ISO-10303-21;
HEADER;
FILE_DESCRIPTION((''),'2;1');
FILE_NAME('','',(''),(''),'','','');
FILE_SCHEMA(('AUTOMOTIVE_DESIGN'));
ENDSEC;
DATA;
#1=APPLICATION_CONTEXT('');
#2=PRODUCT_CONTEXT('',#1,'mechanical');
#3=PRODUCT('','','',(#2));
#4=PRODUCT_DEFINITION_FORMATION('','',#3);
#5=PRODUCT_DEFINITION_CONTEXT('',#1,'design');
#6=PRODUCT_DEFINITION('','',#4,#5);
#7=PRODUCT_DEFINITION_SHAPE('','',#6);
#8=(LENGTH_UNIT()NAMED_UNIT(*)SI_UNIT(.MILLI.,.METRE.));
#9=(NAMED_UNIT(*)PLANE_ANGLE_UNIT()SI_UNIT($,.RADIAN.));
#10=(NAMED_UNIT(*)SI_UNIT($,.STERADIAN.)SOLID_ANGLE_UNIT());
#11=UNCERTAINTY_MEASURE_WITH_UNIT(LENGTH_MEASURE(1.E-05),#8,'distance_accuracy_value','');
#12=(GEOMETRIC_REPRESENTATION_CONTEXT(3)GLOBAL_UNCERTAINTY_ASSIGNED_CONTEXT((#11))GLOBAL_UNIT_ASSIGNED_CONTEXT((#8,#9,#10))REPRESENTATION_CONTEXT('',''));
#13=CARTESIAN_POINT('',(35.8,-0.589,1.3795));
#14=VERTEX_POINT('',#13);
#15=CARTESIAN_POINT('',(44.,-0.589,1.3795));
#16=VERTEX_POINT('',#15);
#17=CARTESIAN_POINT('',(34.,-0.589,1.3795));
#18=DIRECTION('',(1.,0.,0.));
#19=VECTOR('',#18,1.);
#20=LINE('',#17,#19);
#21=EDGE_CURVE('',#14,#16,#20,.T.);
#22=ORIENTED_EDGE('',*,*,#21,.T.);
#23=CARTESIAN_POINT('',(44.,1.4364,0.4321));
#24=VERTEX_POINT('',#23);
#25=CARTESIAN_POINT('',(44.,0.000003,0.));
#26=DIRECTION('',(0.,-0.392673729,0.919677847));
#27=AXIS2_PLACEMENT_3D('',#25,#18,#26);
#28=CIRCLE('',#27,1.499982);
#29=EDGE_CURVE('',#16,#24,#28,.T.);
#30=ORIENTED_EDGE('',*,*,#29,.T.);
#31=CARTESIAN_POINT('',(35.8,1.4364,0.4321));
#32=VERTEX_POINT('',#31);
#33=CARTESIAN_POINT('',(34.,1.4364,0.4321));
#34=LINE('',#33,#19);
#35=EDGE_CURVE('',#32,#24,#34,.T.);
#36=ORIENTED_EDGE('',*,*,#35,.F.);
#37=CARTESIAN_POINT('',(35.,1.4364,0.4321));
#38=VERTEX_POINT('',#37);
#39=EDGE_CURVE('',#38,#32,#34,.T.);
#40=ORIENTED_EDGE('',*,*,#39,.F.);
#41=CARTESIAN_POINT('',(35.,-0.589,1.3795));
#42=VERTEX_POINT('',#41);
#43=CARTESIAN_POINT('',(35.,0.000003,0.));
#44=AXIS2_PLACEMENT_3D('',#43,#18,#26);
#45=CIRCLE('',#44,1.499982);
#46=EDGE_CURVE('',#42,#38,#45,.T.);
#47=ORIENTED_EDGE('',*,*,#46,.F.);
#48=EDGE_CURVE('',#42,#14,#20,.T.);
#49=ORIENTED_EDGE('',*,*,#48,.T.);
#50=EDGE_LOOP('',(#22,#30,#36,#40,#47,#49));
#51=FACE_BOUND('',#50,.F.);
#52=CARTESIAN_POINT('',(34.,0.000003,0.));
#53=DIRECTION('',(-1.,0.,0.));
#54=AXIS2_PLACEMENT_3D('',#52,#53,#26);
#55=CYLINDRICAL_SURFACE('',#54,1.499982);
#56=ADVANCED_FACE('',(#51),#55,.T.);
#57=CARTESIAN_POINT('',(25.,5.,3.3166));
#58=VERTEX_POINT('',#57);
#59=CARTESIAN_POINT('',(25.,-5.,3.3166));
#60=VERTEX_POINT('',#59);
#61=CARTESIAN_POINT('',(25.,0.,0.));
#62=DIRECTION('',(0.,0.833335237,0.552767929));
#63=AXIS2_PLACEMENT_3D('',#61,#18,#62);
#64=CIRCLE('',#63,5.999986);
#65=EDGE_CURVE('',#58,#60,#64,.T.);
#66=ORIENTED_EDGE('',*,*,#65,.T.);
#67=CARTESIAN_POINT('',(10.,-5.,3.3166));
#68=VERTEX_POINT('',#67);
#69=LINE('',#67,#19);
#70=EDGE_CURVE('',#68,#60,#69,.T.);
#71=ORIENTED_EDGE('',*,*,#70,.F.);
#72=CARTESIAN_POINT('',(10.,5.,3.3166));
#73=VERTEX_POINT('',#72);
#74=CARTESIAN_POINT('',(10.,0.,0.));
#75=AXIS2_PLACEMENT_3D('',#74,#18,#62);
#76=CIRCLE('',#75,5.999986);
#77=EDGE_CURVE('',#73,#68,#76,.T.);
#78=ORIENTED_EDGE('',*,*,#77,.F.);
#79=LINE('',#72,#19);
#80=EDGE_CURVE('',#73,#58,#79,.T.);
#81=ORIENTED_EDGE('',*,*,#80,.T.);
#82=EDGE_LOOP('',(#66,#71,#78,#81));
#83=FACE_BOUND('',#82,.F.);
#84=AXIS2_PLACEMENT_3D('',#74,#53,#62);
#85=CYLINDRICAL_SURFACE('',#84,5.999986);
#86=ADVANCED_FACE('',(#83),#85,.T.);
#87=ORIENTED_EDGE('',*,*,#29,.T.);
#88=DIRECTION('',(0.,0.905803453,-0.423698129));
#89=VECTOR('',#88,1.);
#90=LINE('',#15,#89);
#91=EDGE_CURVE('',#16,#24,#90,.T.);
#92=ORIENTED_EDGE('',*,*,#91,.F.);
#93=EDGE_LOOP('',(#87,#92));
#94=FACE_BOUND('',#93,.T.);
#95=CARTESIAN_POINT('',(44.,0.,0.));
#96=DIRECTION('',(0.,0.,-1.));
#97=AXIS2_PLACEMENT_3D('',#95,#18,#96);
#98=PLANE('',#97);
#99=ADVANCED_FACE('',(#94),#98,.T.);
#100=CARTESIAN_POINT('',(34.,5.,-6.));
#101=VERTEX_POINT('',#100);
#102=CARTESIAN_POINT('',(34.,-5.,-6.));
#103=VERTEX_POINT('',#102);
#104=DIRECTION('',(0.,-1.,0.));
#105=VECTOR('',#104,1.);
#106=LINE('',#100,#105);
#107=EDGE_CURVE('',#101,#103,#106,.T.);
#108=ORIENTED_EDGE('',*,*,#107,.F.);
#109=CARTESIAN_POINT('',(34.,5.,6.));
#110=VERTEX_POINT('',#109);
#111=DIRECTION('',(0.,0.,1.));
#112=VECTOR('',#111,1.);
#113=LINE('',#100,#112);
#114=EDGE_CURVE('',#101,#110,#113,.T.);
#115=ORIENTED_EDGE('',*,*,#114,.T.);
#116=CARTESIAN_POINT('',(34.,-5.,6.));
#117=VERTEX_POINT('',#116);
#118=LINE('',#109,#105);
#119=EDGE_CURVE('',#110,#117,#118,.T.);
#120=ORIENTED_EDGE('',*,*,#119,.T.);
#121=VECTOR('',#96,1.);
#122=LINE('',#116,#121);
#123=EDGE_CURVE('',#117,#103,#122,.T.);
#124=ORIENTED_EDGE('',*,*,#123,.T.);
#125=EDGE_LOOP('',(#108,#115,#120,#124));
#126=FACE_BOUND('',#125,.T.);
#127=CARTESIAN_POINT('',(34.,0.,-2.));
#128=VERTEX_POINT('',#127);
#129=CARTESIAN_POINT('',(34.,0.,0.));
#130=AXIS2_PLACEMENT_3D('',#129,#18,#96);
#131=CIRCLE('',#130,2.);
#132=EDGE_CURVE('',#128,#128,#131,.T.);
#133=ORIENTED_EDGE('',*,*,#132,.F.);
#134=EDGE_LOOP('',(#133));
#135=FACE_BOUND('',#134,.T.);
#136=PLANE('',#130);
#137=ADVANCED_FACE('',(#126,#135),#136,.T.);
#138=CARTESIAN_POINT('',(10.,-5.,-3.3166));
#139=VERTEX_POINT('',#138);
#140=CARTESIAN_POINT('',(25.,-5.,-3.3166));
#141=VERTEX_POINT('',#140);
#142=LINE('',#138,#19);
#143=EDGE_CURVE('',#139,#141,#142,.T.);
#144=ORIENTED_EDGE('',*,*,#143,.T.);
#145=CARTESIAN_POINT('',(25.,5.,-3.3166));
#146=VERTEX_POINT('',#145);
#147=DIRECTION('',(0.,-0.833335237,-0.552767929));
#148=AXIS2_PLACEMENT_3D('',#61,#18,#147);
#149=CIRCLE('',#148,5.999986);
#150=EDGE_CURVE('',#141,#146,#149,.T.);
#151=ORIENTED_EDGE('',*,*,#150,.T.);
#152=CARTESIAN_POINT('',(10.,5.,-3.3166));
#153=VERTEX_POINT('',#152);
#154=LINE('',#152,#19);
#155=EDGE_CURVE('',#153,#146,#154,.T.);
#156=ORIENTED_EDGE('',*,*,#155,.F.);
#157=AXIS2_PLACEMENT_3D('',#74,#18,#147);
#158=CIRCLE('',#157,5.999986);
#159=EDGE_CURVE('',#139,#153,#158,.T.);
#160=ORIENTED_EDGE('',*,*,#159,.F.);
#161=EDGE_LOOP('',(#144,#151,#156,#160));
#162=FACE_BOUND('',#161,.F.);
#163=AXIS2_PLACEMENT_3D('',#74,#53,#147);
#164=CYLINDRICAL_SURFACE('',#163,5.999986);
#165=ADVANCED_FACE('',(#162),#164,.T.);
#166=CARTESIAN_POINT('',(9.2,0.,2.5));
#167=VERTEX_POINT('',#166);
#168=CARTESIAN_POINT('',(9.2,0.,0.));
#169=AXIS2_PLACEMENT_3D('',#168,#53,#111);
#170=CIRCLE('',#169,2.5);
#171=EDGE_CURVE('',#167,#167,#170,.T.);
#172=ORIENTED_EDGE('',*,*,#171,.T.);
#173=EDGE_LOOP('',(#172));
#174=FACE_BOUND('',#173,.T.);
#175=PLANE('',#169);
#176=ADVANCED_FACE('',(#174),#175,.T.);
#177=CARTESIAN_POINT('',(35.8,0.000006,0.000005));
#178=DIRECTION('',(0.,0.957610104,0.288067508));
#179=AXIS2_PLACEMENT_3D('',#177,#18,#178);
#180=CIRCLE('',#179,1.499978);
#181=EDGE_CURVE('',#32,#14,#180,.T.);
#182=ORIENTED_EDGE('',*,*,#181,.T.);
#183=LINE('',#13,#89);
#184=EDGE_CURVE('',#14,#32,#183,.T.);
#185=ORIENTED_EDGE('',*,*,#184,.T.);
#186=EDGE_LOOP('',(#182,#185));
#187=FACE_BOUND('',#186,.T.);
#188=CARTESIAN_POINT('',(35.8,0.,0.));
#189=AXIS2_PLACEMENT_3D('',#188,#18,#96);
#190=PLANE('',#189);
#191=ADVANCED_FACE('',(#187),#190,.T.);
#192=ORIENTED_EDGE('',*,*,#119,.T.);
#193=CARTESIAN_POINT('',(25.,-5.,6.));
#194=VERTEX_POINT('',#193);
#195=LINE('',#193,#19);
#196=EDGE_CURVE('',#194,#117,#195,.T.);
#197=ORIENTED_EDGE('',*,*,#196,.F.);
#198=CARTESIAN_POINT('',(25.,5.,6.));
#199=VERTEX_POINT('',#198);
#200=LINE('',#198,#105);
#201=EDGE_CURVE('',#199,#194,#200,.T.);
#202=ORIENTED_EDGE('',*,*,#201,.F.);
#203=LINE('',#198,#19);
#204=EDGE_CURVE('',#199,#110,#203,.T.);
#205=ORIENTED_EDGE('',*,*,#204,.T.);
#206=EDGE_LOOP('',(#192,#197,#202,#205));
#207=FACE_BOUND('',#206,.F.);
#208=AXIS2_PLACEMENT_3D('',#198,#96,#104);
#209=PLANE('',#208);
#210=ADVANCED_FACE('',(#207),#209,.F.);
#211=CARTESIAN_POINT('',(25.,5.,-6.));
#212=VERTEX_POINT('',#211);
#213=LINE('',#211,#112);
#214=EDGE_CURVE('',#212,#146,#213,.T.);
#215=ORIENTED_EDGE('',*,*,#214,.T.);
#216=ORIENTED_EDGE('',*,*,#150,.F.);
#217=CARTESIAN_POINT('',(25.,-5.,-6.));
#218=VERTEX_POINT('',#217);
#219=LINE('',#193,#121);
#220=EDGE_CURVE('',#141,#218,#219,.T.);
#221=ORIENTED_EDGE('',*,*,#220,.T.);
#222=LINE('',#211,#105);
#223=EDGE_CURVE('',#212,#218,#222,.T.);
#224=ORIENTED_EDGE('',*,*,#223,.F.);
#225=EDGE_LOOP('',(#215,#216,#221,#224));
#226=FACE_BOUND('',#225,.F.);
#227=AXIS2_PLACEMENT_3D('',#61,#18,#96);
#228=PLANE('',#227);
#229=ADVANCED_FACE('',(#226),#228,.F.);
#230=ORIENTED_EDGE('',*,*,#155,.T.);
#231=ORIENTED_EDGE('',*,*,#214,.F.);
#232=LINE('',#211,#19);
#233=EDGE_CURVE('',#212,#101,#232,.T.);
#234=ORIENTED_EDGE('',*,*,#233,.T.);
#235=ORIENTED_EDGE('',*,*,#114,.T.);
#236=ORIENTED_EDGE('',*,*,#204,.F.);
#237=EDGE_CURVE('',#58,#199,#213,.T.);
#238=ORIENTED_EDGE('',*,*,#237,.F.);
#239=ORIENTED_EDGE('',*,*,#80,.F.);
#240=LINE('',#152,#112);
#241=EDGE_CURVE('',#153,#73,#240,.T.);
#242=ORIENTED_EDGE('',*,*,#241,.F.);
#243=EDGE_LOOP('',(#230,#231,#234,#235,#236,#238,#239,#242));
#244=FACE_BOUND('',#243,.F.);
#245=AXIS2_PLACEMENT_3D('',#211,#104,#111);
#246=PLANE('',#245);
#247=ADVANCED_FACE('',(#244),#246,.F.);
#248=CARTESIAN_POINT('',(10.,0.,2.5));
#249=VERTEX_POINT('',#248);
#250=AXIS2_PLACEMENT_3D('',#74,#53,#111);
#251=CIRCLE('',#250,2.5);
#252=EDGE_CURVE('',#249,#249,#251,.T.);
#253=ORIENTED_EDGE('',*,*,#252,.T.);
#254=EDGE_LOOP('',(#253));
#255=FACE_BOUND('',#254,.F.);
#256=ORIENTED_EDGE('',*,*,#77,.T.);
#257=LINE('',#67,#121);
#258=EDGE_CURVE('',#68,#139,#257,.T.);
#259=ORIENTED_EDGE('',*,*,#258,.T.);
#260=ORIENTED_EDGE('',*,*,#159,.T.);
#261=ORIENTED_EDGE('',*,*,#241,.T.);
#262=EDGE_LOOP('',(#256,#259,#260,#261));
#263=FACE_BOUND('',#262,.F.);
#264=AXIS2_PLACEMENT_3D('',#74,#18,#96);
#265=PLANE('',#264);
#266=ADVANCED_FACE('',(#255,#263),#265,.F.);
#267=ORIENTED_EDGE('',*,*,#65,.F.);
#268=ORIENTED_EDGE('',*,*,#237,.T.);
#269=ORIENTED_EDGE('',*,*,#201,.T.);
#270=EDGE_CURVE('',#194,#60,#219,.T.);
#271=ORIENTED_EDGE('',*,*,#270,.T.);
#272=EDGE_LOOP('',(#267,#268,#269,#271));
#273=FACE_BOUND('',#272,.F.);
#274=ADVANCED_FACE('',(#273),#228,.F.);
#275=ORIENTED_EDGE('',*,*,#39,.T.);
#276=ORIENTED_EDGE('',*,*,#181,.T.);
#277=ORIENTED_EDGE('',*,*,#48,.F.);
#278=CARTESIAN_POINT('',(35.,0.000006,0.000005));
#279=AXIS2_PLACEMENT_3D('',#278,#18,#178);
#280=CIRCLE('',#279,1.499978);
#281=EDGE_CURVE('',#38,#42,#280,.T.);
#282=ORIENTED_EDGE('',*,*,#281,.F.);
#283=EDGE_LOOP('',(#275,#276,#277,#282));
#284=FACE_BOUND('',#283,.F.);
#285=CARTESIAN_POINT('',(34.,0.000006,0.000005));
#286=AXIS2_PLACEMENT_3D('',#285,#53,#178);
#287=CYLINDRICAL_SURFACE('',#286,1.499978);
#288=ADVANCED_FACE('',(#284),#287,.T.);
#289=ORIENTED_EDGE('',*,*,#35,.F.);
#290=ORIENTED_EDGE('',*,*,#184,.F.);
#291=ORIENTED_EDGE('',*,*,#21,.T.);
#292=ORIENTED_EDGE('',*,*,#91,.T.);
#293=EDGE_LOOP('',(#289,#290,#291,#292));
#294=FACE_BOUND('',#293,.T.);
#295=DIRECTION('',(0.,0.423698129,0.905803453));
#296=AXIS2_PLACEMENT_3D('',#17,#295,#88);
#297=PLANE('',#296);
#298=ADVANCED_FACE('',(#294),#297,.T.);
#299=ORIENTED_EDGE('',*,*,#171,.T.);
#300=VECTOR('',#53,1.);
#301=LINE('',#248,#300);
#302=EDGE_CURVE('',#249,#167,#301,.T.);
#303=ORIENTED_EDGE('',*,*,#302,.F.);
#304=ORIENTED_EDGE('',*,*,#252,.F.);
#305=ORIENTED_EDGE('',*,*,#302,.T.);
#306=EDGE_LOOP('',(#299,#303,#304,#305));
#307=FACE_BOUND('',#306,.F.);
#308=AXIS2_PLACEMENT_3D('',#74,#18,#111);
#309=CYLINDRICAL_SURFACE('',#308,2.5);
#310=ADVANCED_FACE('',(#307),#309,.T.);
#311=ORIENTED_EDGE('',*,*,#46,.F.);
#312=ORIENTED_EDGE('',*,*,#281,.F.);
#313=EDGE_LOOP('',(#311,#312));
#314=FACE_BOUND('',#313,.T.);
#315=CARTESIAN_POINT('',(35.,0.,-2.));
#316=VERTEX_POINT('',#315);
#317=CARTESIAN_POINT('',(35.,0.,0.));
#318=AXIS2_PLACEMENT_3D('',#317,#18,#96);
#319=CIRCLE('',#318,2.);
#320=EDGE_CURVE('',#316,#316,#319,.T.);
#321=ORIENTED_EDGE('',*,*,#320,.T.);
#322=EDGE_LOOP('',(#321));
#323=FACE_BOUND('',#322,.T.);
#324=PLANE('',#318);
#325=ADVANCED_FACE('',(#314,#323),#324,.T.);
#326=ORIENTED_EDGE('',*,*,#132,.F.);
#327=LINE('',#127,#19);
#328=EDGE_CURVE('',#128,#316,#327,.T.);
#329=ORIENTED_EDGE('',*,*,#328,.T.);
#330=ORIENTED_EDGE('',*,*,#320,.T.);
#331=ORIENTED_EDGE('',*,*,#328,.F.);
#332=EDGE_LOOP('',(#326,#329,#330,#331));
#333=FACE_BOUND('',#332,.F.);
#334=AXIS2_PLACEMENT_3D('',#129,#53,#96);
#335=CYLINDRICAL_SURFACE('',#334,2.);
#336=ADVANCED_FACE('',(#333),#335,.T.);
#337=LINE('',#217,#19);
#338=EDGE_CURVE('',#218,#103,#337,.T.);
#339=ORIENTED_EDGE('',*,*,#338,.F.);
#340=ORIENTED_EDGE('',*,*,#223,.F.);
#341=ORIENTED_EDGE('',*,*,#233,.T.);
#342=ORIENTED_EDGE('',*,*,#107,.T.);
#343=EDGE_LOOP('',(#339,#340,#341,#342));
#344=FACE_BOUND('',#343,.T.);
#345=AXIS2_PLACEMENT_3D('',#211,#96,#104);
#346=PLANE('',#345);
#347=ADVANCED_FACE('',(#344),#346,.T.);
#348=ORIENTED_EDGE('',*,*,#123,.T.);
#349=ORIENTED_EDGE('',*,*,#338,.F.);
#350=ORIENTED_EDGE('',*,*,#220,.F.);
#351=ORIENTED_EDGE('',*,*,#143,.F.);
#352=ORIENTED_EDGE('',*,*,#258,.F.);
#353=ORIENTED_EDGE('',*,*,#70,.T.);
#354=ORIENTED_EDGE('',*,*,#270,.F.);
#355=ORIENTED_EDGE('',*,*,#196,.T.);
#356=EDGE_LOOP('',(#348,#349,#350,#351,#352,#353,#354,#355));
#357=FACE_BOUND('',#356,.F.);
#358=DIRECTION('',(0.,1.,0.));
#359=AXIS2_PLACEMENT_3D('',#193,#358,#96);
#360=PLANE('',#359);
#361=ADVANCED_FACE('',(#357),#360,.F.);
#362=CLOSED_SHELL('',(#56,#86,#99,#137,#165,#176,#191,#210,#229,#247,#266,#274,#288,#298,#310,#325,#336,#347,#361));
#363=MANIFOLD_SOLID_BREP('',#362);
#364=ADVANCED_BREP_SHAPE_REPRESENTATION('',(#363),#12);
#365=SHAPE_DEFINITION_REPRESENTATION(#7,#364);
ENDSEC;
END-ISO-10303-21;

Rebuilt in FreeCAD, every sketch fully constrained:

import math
import FreeCAD as App
import Part
import Sketcher
from FreeCAD import Vector

doc = App.newDocument("Part")
body = doc.addObject("PartDesign::Body", "Body")

sketch1 = doc.addObject("Sketcher::SketchObject", "Sketch")
body.addObject(sketch1)
sketch1.AttachmentSupport = (doc.YZ_Plane, [""])
sketch1.MapMode = "FlatFace"
sketch1.AttachmentOffset = App.Placement(Vector(0, 0, 10), App.Rotation())
sketch1.addGeometry([
    Part.LineSegment(Vector(5, -3.3166, 0), Vector(5, 3.3166, 0)),
    Part.ArcOfCircle(Part.Circle(Vector(0, 0, 0), Vector(0, 0, 1), 5.999986), math.radians(33.557112), math.radians(146.442888)),
    Part.LineSegment(Vector(-5, 3.3166, 0), Vector(-5, -3.3166, 0)),
    Part.ArcOfCircle(Part.Circle(Vector(0, 0, 0), Vector(0, 0, 1), 5.999986), math.radians(-146.442888), math.radians(-33.557112)),
], False)
sketch1.addConstraint([
    Sketcher.Constraint("Coincident", 0, 2, 1, 1),
    Sketcher.Constraint("Coincident", 1, 2, 2, 1),
    Sketcher.Constraint("Coincident", 2, 2, 3, 1),
    Sketcher.Constraint("Coincident", 3, 2, 0, 1),
    Sketcher.Constraint("Vertical", 0),
    Sketcher.Constraint("Vertical", 2),
    Sketcher.Constraint("Coincident", 1, 3, -1, 1),
    Sketcher.Constraint("Coincident", 3, 3, -1, 1),
    Sketcher.Constraint("Equal", 1, 3),
    Sketcher.Constraint("Horizontal", 0, 2, 1, 2),
    Sketcher.Constraint("Radius", 1, 6.0),
    Sketcher.Constraint("DistanceX", -1, 1, 0, 2, 5.0),
])
pad1 = doc.addObject("PartDesign::Pad", "Pad")
body.addObject(pad1)
pad1.Profile = sketch1
pad1.Length = 15

sketch2 = doc.addObject("Sketcher::SketchObject", "Sketch001")
body.addObject(sketch2)
sketch2.AttachmentSupport = (doc.YZ_Plane, [""])
sketch2.MapMode = "FlatFace"
sketch2.AttachmentOffset = App.Placement(Vector(0, 0, 25), App.Rotation())
sketch2.addGeometry([
    Part.LineSegment(Vector(5, -6, 0), Vector(5, 6, 0)),
    Part.LineSegment(Vector(5, 6, 0), Vector(-5, 6, 0)),
    Part.LineSegment(Vector(-5, 6, 0), Vector(-5, -6, 0)),
    Part.LineSegment(Vector(-5, -6, 0), Vector(5, -6, 0)),
], False)
sketch2.addConstraint([
    Sketcher.Constraint("Coincident", 0, 2, 1, 1),
    Sketcher.Constraint("Coincident", 1, 2, 2, 1),
    Sketcher.Constraint("Coincident", 2, 2, 3, 1),
    Sketcher.Constraint("Coincident", 3, 2, 0, 1),
    Sketcher.Constraint("Vertical", 0),
    Sketcher.Constraint("Horizontal", 1),
    Sketcher.Constraint("Vertical", 2),
    Sketcher.Constraint("Horizontal", 3),
    Sketcher.Constraint("Symmetric", 0, 2, 2, 2, -1, 1),
    Sketcher.Constraint("DistanceX", 1, 2, 1, 1, 10.0),
    Sketcher.Constraint("DistanceY", 0, 1, 0, 2, 12.0),
])
pad2 = doc.addObject("PartDesign::Pad", "Pad001")
body.addObject(pad2)
pad2.Profile = sketch2
pad2.Length = 9

sketch3 = doc.addObject("Sketcher::SketchObject", "Sketch002")
body.addObject(sketch3)
sketch3.AttachmentSupport = (doc.YZ_Plane, [""])
sketch3.MapMode = "FlatFace"
sketch3.AttachmentOffset = App.Placement(Vector(0, 0, 34), App.Rotation())
sketch3.addGeometry([
    Part.Circle(Vector(0, 0, 0), Vector(0, 0, 1), 2),
    Part.ArcOfCircle(Part.Circle(Vector(0, 0, 0), Vector(0, 0, 1), 1.49998), math.radians(113.120849), math.radians(376.742416)),
    Part.ArcOfCircle(Part.Circle(Vector(0, 0, 0), Vector(0, 0, 1), 1.49998), math.radians(16.742416), math.radians(113.120849)),
], False)
sketch3.addConstraint([
    Sketcher.Constraint("Tangent", 1, 1, 2, 2),
    Sketcher.Constraint("Coincident", 2, 1, 1, 2),
    Sketcher.Constraint("Coincident", 0, 3, -1, 1),
    Sketcher.Constraint("Coincident", 1, 3, -1, 1),
    Sketcher.Constraint("Diameter", 0, 4.0),
    Sketcher.Constraint("Radius", 1, 1.5),
    Sketcher.Constraint("DistanceX", 1, 1, -1, 1, 0.589),
    Sketcher.Constraint("DistanceY", -1, 1, 2, 1, 0.432),
])
pad3 = doc.addObject("PartDesign::Pad", "Pad002")
body.addObject(pad3)
pad3.Profile = sketch3
pad3.Length = 1

sketch4 = doc.addObject("Sketcher::SketchObject", "Sketch003")
body.addObject(sketch4)
sketch4.AttachmentSupport = (doc.YZ_Plane, [""])
sketch4.MapMode = "FlatFace"
sketch4.AttachmentOffset = App.Placement(Vector(0, 0, 34), App.Rotation())
sketch4.addGeometry([
    Part.LineSegment(Vector(1.4364, 0.4321, 0), Vector(-0.589, 1.3795, 0)),
    Part.ArcOfCircle(Part.Circle(Vector(0, 0, 0), Vector(0, 0, 1), 1.49998), math.radians(113.120849), math.radians(376.742416)),
], False)
sketch4.addConstraint([
    Sketcher.Constraint("Coincident", 0, 1, 1, 2),
    Sketcher.Constraint("Coincident", 1, 1, 0, 2),
    Sketcher.Constraint("Coincident", 1, 3, -1, 1),
    Sketcher.Constraint("Radius", 1, 1.5),
    Sketcher.Constraint("Distance", 0, 2.236),
    Sketcher.Constraint("DistanceY", -1, 1, 0, 1, 0.432),
])
pad4 = doc.addObject("PartDesign::Pad", "Pad003")
body.addObject(pad4)
pad4.Profile = sketch4
pad4.Length = 10

sketch5 = doc.addObject("Sketcher::SketchObject", "Sketch004")
body.addObject(sketch5)
sketch5.AttachmentSupport = (doc.YZ_Plane, [""])
sketch5.MapMode = "FlatFace"
sketch5.AttachmentOffset = App.Placement(Vector(0, 0, 34), App.Rotation())
sketch5.addGeometry([
    Part.ArcOfCircle(Part.Circle(Vector(0, 0, 0), Vector(0, 0, 1), 1.49998), math.radians(16.742416), math.radians(113.120849)),
    Part.LineSegment(Vector(-0.589, 1.3795, 0), Vector(1.4364, 0.4321, 0)),
], False)
sketch5.addConstraint([
    Sketcher.Constraint("Coincident", 0, 1, 1, 2),
    Sketcher.Constraint("Coincident", 1, 1, 0, 2),
    Sketcher.Constraint("Coincident", 0, 3, -1, 1),
    Sketcher.Constraint("Radius", 0, 1.5),
    Sketcher.Constraint("Distance", 1, 2.236),
    Sketcher.Constraint("DistanceY", -1, 1, 0, 1, 0.432),
])
pad5 = doc.addObject("PartDesign::Pad", "Pad004")
body.addObject(pad5)
pad5.Profile = sketch5
pad5.Length = 1.8

sketch6 = doc.addObject("Sketcher::SketchObject", "Sketch005")
body.addObject(sketch6)
sketch6.AttachmentSupport = (doc.YZ_Plane, [""])
sketch6.MapMode = "FlatFace"
sketch6.AttachmentOffset = App.Placement(Vector(0, 0, 10), App.Rotation())
sketch6.addGeometry(Part.Circle(Vector(0, 0, 0), Vector(0, 0, 1), 2.5), False)
sketch6.addConstraint([
    Sketcher.Constraint("Coincident", 0, 3, -1, 1),
    Sketcher.Constraint("Diameter", 0, 5.0),
])
pad6 = doc.addObject("PartDesign::Pad", "Pad005")
body.addObject(pad6)
pad6.Profile = sketch6
pad6.Length = 0.8
pad6.Reversed = True

doc.recompute()
